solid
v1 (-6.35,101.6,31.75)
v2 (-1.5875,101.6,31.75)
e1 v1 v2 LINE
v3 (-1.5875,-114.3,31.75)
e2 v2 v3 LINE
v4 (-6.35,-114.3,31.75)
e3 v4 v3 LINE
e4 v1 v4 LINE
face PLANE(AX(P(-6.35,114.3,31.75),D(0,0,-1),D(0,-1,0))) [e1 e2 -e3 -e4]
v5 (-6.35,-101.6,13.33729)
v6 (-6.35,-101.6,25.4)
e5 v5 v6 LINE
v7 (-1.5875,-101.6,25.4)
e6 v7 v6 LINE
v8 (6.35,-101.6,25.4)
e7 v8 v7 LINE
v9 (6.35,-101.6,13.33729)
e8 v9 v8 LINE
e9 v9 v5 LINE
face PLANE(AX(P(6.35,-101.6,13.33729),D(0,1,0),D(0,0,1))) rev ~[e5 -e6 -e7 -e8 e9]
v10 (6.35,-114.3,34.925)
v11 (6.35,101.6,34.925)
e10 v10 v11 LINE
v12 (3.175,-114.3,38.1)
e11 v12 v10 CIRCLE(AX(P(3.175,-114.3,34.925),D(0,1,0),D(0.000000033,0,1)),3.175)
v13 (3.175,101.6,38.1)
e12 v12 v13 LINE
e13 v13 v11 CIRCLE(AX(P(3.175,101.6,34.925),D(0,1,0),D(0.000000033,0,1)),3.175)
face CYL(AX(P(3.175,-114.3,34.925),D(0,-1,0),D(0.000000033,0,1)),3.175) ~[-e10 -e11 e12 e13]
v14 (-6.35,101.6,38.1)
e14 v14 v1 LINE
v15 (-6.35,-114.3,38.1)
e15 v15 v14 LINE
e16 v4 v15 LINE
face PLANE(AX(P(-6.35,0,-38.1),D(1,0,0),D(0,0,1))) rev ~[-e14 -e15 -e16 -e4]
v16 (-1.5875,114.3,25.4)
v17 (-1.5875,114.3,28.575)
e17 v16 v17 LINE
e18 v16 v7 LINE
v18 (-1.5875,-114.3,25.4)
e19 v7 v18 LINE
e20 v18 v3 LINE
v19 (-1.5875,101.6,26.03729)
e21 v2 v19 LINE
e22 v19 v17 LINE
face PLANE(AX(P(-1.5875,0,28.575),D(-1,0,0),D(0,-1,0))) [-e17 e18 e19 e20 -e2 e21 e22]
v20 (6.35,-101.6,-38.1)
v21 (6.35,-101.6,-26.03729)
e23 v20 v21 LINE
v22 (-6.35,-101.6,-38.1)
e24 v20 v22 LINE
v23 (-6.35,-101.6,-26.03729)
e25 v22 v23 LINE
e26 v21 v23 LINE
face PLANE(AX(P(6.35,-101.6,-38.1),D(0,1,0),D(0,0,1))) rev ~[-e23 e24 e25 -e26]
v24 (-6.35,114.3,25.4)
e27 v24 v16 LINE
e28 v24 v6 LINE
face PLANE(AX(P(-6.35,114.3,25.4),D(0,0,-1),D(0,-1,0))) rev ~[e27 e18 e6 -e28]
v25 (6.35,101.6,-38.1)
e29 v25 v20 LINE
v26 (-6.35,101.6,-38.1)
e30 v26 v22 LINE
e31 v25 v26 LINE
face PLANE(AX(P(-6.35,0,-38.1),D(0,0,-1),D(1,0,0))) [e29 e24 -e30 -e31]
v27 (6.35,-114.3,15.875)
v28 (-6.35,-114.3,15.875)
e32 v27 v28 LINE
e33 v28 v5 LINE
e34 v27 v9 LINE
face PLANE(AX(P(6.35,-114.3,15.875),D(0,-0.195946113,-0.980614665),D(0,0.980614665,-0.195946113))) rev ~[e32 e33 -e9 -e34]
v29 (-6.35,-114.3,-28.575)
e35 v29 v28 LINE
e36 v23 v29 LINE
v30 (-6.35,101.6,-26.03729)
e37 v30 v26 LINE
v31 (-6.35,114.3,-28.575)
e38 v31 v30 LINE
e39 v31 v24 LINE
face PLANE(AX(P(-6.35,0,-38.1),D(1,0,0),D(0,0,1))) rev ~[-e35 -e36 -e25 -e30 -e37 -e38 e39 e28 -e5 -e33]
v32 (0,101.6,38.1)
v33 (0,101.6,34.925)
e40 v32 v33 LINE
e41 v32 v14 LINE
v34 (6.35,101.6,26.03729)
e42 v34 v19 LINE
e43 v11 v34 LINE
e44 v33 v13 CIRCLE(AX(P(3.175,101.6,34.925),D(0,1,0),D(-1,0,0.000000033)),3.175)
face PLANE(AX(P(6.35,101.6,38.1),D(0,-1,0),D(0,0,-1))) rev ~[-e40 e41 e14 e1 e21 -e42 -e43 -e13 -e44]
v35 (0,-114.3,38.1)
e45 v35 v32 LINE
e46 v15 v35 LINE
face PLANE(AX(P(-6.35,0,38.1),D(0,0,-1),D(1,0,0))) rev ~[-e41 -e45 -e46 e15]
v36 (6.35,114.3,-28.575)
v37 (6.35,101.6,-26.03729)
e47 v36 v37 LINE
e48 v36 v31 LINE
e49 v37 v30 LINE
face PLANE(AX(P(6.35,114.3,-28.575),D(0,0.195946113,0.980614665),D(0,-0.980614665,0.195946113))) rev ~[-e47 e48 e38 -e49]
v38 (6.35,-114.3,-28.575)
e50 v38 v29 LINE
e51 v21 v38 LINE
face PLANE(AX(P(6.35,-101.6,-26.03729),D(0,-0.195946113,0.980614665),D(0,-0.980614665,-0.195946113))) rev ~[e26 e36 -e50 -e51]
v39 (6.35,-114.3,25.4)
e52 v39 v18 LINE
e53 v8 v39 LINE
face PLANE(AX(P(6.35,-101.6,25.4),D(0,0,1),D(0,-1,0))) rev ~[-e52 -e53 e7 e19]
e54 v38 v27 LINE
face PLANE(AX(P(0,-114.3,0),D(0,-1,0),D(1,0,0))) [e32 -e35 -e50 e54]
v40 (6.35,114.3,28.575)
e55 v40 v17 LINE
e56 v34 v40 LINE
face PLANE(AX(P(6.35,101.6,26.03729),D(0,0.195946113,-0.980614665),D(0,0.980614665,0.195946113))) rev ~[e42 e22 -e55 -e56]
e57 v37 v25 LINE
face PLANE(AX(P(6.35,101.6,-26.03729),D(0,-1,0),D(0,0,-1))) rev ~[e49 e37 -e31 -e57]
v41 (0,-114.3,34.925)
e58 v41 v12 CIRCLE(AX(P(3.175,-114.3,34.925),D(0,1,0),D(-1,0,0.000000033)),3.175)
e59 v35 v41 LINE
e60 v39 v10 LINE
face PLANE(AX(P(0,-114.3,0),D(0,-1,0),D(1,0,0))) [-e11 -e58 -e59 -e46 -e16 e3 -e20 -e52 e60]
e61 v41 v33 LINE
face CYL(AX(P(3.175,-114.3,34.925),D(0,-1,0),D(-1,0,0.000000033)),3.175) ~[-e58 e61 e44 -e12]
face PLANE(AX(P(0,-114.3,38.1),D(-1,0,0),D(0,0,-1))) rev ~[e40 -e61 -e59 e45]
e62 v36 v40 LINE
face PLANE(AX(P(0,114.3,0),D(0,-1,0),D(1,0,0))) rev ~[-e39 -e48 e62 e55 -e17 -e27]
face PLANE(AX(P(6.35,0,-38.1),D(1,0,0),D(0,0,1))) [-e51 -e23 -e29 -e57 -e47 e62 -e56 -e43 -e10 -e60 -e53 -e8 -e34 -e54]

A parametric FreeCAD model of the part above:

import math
import FreeCAD as App
import Part
import Sketcher

V = App.Vector
Q = App.Units.Quantity

doc = App.newDocument("Part")
body = doc.addObject("PartDesign::Body", "Body")

sketch1 = doc.addObject("Sketcher::SketchObject", "Sketch")
body.addObject(sketch1)
sketch1.AttachmentSupport = (doc.XZ_Plane, [""])
sketch1.MapMode = "FlatFace"
sketch1.addGeometry(Part.LineSegment(V(-6, 38, 0), V(-6, -38, 0)), False)
sketch1.addGeometry(Part.LineSegment(V(-6, -38, 0), V(6, -38, 0)), False)
sketch1.addGeometry(Part.LineSegment(V(6, -38, 0), V(6, 38, 0)), False)
sketch1.addGeometry(Part.LineSegment(V(6, 38, 0), V(-6, 38, 0)), False)
sketch1.addConstraint(Sketcher.Constraint("Coincident", 0, 2, 1, 1))
sketch1.addConstraint(Sketcher.Constraint("Coincident", 1, 2, 2, 1))
sketch1.addConstraint(Sketcher.Constraint("Coincident", 2, 2, 3, 1))
sketch1.addConstraint(Sketcher.Constraint("Coincident", 3, 2, 0, 1))
sketch1.addConstraint(Sketcher.Constraint("Vertical", 0))
sketch1.addConstraint(Sketcher.Constraint("Horizontal", 1))
sketch1.addConstraint(Sketcher.Constraint("Vertical", 2))
sketch1.addConstraint(Sketcher.Constraint("Horizontal", 3))
sketch1.addConstraint(Sketcher.Constraint("Symmetric", 0, 2, 2, 2, -1, 1))
sketch1.addConstraint(Sketcher.Constraint("DistanceY", 0, 2, 0, 1, Q("3 in")))
sketch1.addConstraint(Sketcher.Constraint("DistanceX", 1, 1, 1, 2, Q("0.5 in")))
pad1 = doc.addObject("PartDesign::Pad", "Pad")
body.addObject(pad1)
pad1.Profile = sketch1
pad1.Length = Q("9 in")
pad1.Midplane = True

sketch2 = doc.addObject("Sketcher::SketchObject", "Sketch001")
body.addObject(sketch2)
sketch2.AttachmentSupport = (doc.YZ_Plane, [""])
sketch2.MapMode = "FlatFace"
sketch2.AttachmentOffset = App.Placement(V(0, 0, 0.25 * 25.4), App.Rotation())
sketch2.addGeometry(Part.LineSegment(V(-102, 25, 0), V(-114, 25, 0)), False)
sketch2.addGeometry(Part.LineSegment(V(-114, 25, 0), V(-114, 16, 0)), False)
sketch2.addGeometry(Part.LineSegment(V(-114, 16, 0), V(-102, 13, 0)), False)
sketch2.addGeometry(Part.LineSegment(V(-102, 13, 0), V(-102, 25, 0)), False)
sketch2.addGeometry(Part.LineSegment(V(-114, -29, 0), V(-114, -38, 0)), False)
sketch2.addGeometry(Part.LineSegment(V(-114, -38, 0), V(-102, -38, 0)), False)
sketch2.addGeometry(Part.LineSegment(V(-102, -38, 0), V(-102, -26, 0)), False)
sketch2.addGeometry(Part.LineSegment(V(-102, -26, 0), V(-114, -29, 0)), False)
sketch2.addGeometry(Part.LineSegment(V(114, 29, 0), V(114, 38, 0)), False)
sketch2.addGeometry(Part.LineSegment(V(114, 38, 0), V(102, 38, 0)), False)
sketch2.addGeometry(Part.LineSegment(V(102, 38, 0), V(102, 26, 0)), False)
sketch2.addGeometry(Part.LineSegment(V(102, 26, 0), V(114, 29, 0)), False)
sketch2.addGeometry(Part.LineSegment(V(102, -38, 0), V(114, -38, 0)), False)
sketch2.addGeometry(Part.LineSegment(V(114, -38, 0), V(114, -29, 0)), False)
sketch2.addGeometry(Part.LineSegment(V(114, -29, 0), V(102, -26, 0)), False)
sketch2.addGeometry(Part.LineSegment(V(102, -26, 0), V(102, -38, 0)), False)
sketch2.addConstraint(Sketcher.Constraint("Coincident", 0, 2, 1, 1))
sketch2.addConstraint(Sketcher.Constraint("Coincident", 1, 2, 2, 1))
sketch2.addConstraint(Sketcher.Constraint("Coincident", 2, 2, 3, 1))
sketch2.addConstraint(Sketcher.Constraint("Coincident", 3, 2, 0, 1))
sketch2.addConstraint(Sketcher.Constraint("Coincident", 4, 2, 5, 1))
sketch2.addConstraint(Sketcher.Constraint("Coincident", 5, 2, 6, 1))
sketch2.addConstraint(Sketcher.Constraint("Coincident", 6, 2, 7, 1))
sketch2.addConstraint(Sketcher.Constraint("Coincident", 7, 2, 4, 1))
sketch2.addConstraint(Sketcher.Constraint("Coincident", 8, 2, 9, 1))
sketch2.addConstraint(Sketcher.Constraint("Coincident", 9, 2, 10, 1))
sketch2.addConstraint(Sketcher.Constraint("Coincident", 10, 2, 11, 1))
sketch2.addConstraint(Sketcher.Constraint("Coincident", 11, 2, 8, 1))
sketch2.addConstraint(Sketcher.Constraint("Coincident", 12, 2, 13, 1))
sketch2.addConstraint(Sketcher.Constraint("Coincident", 13, 2, 14, 1))
sketch2.addConstraint(Sketcher.Constraint("Coincident", 14, 2, 15, 1))
sketch2.addConstraint(Sketcher.Constraint("Coincident", 15, 2, 12, 1))
sketch2.addConstraint(Sketcher.Constraint("Horizontal", 0))
sketch2.addConstraint(Sketcher.Constraint("Vertical", 1))
sketch2.addConstraint(Sketcher.Constraint("Vertical", 3))
sketch2.addConstraint(Sketcher.Constraint("Vertical", 4))
sketch2.addConstraint(Sketcher.Constraint("Horizontal", 5))
sketch2.addConstraint(Sketcher.Constraint("Vertical", 6))
sketch2.addConstraint(Sketcher.Constraint("Vertical", 8))
sketch2.addConstraint(Sketcher.Constraint("Horizontal", 9))
sketch2.addConstraint(Sketcher.Constraint("Vertical", 10))
sketch2.addConstraint(Sketcher.Constraint("Horizontal", 12))
sketch2.addConstraint(Sketcher.Constraint("Vertical", 13))
sketch2.addConstraint(Sketcher.Constraint("Vertical", 15))
sketch2.addConstraint(Sketcher.Constraint("Symmetric", 4, 2, 8, 2, -1, 1))
sketch2.addConstraint(Sketcher.Constraint("Symmetric", 6, 2, 10, 2, -1, 1))
sketch2.addConstraint(Sketcher.Constraint("Symmetric", 4, 2, 12, 2, -2))
sketch2.addConstraint(Sketcher.Constraint("Symmetric", 6, 2, 14, 2, -2))
sketch2.addConstraint(Sketcher.Constraint("Parallel", 7, 11))
sketch2.addConstraint(Sketcher.Constraint("Parallel", 2, 14))
sketch2.addConstraint(Sketcher.Constraint("Horizontal", 7, 2, 13, 2))
sketch2.addConstraint(Sketcher.Constraint("Vertical", 1, 2, 4, 2))
sketch2.addConstraint(Sketcher.Constraint("Vertical", 3, 2, 5, 2))
sketch2.addConstraint(Sketcher.Constraint("Equal", 1, 4))
sketch2.addConstraint(Sketcher.Constraint("DistanceX", 0, 2, 0, 1, Q("0.5 in")))
sketch2.addConstraint(Sketcher.Constraint("DistanceY", -1, 1, 0, 2, Q("1 in")))
sketch2.addConstraint(Sketcher.Constraint("DistanceX", 2, 2, -1, 1, Q("4 in")))
sketch2.addConstraint(Sketcher.Constraint("DistanceY", 5, 2, 8, 2, Q("3 in")))
sketch2.addConstraint(Sketcher.Constraint("Angle", 2, Q("-11.299998 deg")))
sketch2.addConstraint(Sketcher.Constraint("DistanceY", 1, 2, 1, 1, Q("0.375 in")))
pocket1 = doc.addObject("PartDesign::Pocket", "Pocket")
body.addObject(pocket1)
pocket1.Profile = sketch2
pocket1.Type = "ThroughAll"

sketch3 = doc.addObject("Sketcher::SketchObject", "Sketch002")
body.addObject(sketch3)
sketch3.AttachmentSupport = (doc.YZ_Plane, [""])
sketch3.MapMode = "FlatFace"
sketch3.AttachmentOffset = App.Placement(V(0, 0, -0.25 * 25.4), App.Rotation())
sketch3.addGeometry(Part.LineSegment(V(114, 32, 0), V(114, 25, 0)), False)
sketch3.addGeometry(Part.LineSegment(V(114, 25, 0), V(-114, 25, 0)), False)
sketch3.addGeometry(Part.LineSegment(V(-114, 25, 0), V(-114, 32, 0)), False)
sketch3.addGeometry(Part.LineSegment(V(-114, 32, 0), V(114, 32, 0)), False)
sketch3.addConstraint(Sketcher.Constraint("Coincident", 0, 2, 1, 1))
sketch3.addConstraint(Sketcher.Constraint("Coincident", 1, 2, 2, 1))
sketch3.addConstraint(Sketcher.Constraint("Coincident", 2, 2, 3, 1))
sketch3.addConstraint(Sketcher.Constraint("Coincident", 3, 2, 0, 1))
sketch3.addConstraint(Sketcher.Constraint("Vertical", 0))
sketch3.addConstraint(Sketcher.Constraint("Horizontal", 1))
sketch3.addConstraint(Sketcher.Constraint("Vertical", 2))
sketch3.addConstraint(Sketcher.Constraint("Horizontal", 3))
sketch3.addConstraint(Sketcher.Constraint("DistanceX", 1, 2, 1, 1, Q("9 in")))
sketch3.addConstraint(Sketcher.Constraint("DistanceY", -1, 1, 0, 2, Q("1 in")))
sketch3.addConstraint(Sketcher.Constraint("DistanceY", 0, 2, 0, 1, Q("0.25 in")))
sketch3.addConstraint(Sketcher.Constraint("DistanceX", -1, 1, 0, 2, Q("4.5 in")))
pocket2 = doc.addObject("PartDesign::Pocket", "Pocket001")
body.addObject(pocket2)
pocket2.Profile = sketch3
pocket2.Length = Q("0.1875 in")
pocket2.Reversed = True

sketch4 = doc.addObject("Sketcher::SketchObject", "Sketch003")
body.addObject(sketch4)
sketch4.AttachmentSupport = (doc.XZ_Plane, [""])
sketch4.MapMode = "FlatFace"
sketch4.AttachmentOffset = App.Placement(V(0, 0, 4.5 * 25.4), App.Rotation())
sketch4.addGeometry(Part.ArcOfCircle(Part.Circle(V(3.2, 34.9, 0), V(0, 0, 1), 3.2), math.radians(90), math.radians(180)), False)
sketch4.addGeometry(Part.LineSegment(V(3.2, 38.1, 0), V(0, 38.1, 0)), False)
sketch4.addGeometry(Part.LineSegment(V(0, 38.1, 0), V(0, 34.9, 0)), False)
sketch4.addGeometry(Part.ArcOfCircle(Part.Circle(V(3.2, 34.9, 0), V(0, 0, 1), 3.2), math.radians(0), math.radians(90)), False)
sketch4.addGeometry(Part.LineSegment(V(6.3, 34.9, 0), V(6.3, 38.1, 0)), False)
sketch4.addGeometry(Part.LineSegment(V(6.3, 38.1, 0), V(3.2, 38.1, 0)), False)
sketch4.addConstraint(Sketcher.Constraint("Tangent", 0, 1, 1, 1))
sketch4.addConstraint(Sketcher.Constraint("Coincident", 1, 2, 2, 1))
sketch4.addConstraint(Sketcher.Constraint("Tangent", 2, 2, 0, 2))
sketch4.addConstraint(Sketcher.Constraint("Tangent", 3, 1, 4, 1))
sketch4.addConstraint(Sketcher.Constraint("Coincident", 4, 2, 5, 1))
sketch4.addConstraint(Sketcher.Constraint("Tangent", 5, 2, 3, 2))
sketch4.addConstraint(Sketcher.Constraint("Horizontal", 1))
sketch4.addConstraint(Sketcher.Constraint("Vertical", 2))
sketch4.addConstraint(Sketcher.Constraint("Vertical", 4))
sketch4.addConstraint(Sketcher.Constraint("Horizontal", 5))
sketch4.addConstraint(Sketcher.Constraint("Coincident", 3, 3, 0, 3))
sketch4.addConstraint(Sketcher.Constraint("Equal", 0, 3))
sketch4.addConstraint(Sketcher.Constraint("PointOnObject", 1, 2, -2))
sketch4.addConstraint(Sketcher.Constraint("Radius", 0, Q("0.125 in")))
sketch4.addConstraint(Sketcher.Constraint("DistanceY", -1, 1, 0, 1, Q("1.5 in")))
pocket3 = doc.addObject("PartDesign::Pocket", "Pocket002")
body.addObject(pocket3)
pocket3.Profile = sketch4
pocket3.Type = "ThroughAll"

doc.recompute()
